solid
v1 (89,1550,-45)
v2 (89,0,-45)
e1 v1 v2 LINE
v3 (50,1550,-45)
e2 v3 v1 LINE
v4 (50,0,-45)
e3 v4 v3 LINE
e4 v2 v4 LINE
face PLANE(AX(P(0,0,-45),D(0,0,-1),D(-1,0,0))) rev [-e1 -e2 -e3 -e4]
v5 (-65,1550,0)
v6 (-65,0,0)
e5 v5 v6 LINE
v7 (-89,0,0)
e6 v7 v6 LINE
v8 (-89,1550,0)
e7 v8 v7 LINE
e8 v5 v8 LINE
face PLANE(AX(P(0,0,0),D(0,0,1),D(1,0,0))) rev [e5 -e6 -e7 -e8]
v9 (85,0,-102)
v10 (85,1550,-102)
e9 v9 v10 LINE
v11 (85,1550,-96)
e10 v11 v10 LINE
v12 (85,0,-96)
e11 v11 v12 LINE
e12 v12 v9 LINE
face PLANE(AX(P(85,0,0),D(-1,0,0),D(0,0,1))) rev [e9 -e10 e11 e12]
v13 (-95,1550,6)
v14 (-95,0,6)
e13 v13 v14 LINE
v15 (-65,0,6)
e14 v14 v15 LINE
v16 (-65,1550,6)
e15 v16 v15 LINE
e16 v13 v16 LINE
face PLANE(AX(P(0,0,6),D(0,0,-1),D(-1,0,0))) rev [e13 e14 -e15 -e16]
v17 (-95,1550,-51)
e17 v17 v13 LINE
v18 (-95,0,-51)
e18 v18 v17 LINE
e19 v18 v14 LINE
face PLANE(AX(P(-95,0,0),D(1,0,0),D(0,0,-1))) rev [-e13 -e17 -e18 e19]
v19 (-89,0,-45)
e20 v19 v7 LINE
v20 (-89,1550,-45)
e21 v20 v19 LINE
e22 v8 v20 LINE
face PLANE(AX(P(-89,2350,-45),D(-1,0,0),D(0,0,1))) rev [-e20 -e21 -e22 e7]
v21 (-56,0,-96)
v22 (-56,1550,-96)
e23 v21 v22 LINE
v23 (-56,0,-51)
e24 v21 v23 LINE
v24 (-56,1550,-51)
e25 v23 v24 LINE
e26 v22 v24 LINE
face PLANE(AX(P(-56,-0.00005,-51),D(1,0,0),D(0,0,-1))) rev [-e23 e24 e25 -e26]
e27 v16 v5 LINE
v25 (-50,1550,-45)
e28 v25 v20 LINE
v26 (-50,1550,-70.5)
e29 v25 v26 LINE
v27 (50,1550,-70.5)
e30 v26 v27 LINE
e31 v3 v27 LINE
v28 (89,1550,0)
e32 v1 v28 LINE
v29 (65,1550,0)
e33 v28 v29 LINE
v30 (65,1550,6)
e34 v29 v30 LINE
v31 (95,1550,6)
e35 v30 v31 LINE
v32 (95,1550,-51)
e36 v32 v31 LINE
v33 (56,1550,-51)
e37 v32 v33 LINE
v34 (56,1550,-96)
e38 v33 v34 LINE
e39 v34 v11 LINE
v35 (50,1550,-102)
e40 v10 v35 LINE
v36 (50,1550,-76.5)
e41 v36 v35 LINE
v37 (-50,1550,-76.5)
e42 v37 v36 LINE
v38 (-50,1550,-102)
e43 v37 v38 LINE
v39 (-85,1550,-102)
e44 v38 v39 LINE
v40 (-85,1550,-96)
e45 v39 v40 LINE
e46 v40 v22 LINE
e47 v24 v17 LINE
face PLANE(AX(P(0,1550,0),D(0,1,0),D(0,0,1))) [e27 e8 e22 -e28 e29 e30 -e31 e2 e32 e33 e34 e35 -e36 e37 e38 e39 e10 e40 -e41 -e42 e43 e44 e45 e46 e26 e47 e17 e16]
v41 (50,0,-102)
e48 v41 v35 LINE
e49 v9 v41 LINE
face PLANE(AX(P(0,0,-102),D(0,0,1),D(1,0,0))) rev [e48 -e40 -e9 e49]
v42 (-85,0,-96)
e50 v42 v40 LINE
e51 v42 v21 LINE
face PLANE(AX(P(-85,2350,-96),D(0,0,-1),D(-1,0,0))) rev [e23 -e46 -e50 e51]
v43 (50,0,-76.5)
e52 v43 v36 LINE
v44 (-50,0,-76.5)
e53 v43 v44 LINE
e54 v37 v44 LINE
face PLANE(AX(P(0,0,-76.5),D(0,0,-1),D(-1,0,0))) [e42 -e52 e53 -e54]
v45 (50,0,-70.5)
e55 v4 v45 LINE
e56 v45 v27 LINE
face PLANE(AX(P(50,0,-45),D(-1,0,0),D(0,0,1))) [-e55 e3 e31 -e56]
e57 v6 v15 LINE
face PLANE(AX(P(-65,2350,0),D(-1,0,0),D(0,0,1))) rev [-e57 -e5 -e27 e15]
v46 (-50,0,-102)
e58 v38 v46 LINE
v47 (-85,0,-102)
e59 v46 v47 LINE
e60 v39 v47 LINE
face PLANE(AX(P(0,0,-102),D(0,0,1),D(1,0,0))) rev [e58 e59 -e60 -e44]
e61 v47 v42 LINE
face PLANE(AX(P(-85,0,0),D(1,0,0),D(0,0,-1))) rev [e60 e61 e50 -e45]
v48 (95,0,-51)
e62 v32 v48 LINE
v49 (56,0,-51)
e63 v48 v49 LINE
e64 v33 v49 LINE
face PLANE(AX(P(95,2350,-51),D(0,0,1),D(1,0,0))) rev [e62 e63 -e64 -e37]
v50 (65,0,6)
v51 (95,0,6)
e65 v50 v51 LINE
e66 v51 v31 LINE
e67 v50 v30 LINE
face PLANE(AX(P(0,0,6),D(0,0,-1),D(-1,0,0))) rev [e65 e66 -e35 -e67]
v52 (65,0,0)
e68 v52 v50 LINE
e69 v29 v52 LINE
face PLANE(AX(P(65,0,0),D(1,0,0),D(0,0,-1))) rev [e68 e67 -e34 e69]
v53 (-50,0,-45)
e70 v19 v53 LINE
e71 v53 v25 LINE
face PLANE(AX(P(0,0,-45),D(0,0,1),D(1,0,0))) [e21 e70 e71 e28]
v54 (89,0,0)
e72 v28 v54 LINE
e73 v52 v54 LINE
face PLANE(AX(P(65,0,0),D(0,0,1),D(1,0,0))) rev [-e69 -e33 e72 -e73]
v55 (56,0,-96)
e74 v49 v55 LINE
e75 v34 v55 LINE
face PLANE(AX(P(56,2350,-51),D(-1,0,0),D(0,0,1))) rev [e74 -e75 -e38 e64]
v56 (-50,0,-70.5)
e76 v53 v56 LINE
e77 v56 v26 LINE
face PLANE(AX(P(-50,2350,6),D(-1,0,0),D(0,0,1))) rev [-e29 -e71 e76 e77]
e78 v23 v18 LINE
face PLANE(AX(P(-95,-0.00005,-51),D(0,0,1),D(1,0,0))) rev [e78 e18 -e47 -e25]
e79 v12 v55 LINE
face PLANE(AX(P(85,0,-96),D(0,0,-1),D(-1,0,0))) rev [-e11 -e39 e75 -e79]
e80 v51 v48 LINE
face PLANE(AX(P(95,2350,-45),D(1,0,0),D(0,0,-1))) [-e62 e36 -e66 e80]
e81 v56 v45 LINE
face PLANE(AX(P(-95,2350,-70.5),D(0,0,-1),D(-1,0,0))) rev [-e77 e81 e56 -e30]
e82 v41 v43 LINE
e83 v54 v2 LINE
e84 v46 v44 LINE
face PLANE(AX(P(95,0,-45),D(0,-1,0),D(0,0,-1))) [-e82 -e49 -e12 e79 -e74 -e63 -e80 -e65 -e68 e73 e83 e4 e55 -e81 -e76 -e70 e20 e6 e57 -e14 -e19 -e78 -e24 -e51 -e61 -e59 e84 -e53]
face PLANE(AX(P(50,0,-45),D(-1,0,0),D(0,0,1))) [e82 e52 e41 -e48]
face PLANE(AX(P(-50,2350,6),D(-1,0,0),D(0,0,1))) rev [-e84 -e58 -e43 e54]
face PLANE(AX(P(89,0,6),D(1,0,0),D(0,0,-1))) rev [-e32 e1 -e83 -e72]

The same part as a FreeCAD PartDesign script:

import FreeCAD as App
import Part
import Sketcher
from FreeCAD import Vector


def add_polygon(sketch, points):
    """Adds a closed chain of lines whose ends are joined by coincident constraints."""
    first, n = sketch.GeometryCount, len(points)
    for a, b in zip(points, points[1:] + points[:1]):
        sketch.addGeometry(Part.LineSegment(App.Vector(*a, 0), App.Vector(*b, 0)), False)
    for i in range(n):
        sketch.addConstraint(Sketcher.Constraint("Coincident", first + i, 2, first + (i + 1) % n, 1))

doc = App.newDocument("Part")
body = doc.addObject("PartDesign::Body", "Body")

sketch1 = doc.addObject("Sketcher::SketchObject", "Sketch")
body.addObject(sketch1)
sketch1.AttachmentSupport = (doc.XY_Plane, [""])
sketch1.MapMode = "FlatFace"
sketch1.AttachmentOffset = App.Placement(Vector(0, 0, -76.5), App.Rotation())
add_polygon(sketch1, [(95, 2350), (95, 0), (50, 0), (50, 2350)])
sketch1.addConstraint(Sketcher.Constraint("Vertical", 0))
sketch1.addConstraint(Sketcher.Constraint("Horizontal", 1))
sketch1.addConstraint(Sketcher.Constraint("Vertical", 2))
sketch1.addConstraint(Sketcher.Constraint("Horizontal", 3))
sketch1.addConstraint(Sketcher.Constraint("PointOnObject", 0, 2, -1))
sketch1.addConstraint(Sketcher.Constraint("DistanceX", 1, 2, 1, 1, 45.0))
sketch1.addConstraint(Sketcher.Constraint("DistanceY", 0, 2, 0, 1, 2350.0))
sketch1.addConstraint(Sketcher.Constraint("DistanceX", -1, 1, 0, 2, 95.0))
pad1 = doc.addObject("PartDesign::Pad", "Pad")
body.addObject(pad1)
pad1.Profile = sketch1
pad1.Length = 31.5

sketch2 = doc.addObject("Sketcher::SketchObject", "Sketch001")
body.addObject(sketch2)
sketch2.AttachmentSupport = (doc.YZ_Plane, [""])
sketch2.MapMode = "FlatFace"
sketch2.AttachmentOffset = App.Placement(Vector(0, 0, 50), App.Rotation())
add_polygon(sketch2, [(2350, -76.5), (0, -76.5), (0, -70.5), (2350, -70.5)])
sketch2.addConstraint(Sketcher.Constraint("Horizontal", 0))
sketch2.addConstraint(Sketcher.Constraint("Vertical", 1))
sketch2.addConstraint(Sketcher.Constraint("Horizontal", 2))
sketch2.addConstraint(Sketcher.Constraint("Vertical", 3))
sketch2.addConstraint(Sketcher.Constraint("PointOnObject", 0, 2, -2))
sketch2.addConstraint(Sketcher.Constraint("DistanceX", 0, 2, 0, 1, 2350.0))
sketch2.addConstraint(Sketcher.Constraint("DistanceY", 1, 1, 1, 2, 6.0))
sketch2.addConstraint(Sketcher.Constraint("DistanceY", 0, 2, -1, 1, 76.5))
pad2 = doc.addObject("PartDesign::Pad", "Pad001")
body.addObject(pad2)
pad2.Profile = sketch2
pad2.Length = 145
pad2.Reversed = True

sketch3 = doc.addObject("Sketcher::SketchObject", "Sketch002")
body.addObject(sketch3)
sketch3.AttachmentSupport = (doc.XY_Plane, [""])
sketch3.MapMode = "FlatFace"
sketch3.AttachmentOffset = App.Placement(Vector(0, 0, -70.5), App.Rotation())
add_polygon(sketch3, [(-95, 2350), (-95, 0), (-50, 0), (-50, 2350)])
sketch3.addConstraint(Sketcher.Constraint("Vertical", 0))
sketch3.addConstraint(Sketcher.Constraint("Horizontal", 1))
sketch3.addConstraint(Sketcher.Constraint("Vertical", 2))
sketch3.addConstraint(Sketcher.Constraint("Horizontal", 3))
sketch3.addConstraint(Sketcher.Constraint("PointOnObject", 0, 2, -1))
sketch3.addConstraint(Sketcher.Constraint("DistanceX", 1, 1, 1, 2, 45.0))
sketch3.addConstraint(Sketcher.Constraint("DistanceY", 0, 2, 0, 1, 2350.0))
sketch3.addConstraint(Sketcher.Constraint("DistanceX", 0, 2, -1, 1, 95.0))
pad3 = doc.addObject("PartDesign::Pad", "Pad002")
body.addObject(pad3)
pad3.Profile = sketch3
pad3.Length = 76.5

sketch4 = doc.addObject("Sketcher::SketchObject", "Sketch003")
body.addObject(sketch4)
sketch4.AttachmentSupport = (doc.XY_Plane, [""])
sketch4.MapMode = "FlatFace"
sketch4.AttachmentOffset = App.Placement(Vector(0, 0, -45), App.Rotation())
add_polygon(sketch4, [(89, 2350), (89, 0), (95, 0), (95, 2350)])
sketch4.addConstraint(Sketcher.Constraint("Vertical", 0))
sketch4.addConstraint(Sketcher.Constraint("Horizontal", 1))
sketch4.addConstraint(Sketcher.Constraint("Vertical", 2))
sketch4.addConstraint(Sketcher.Constraint("Horizontal", 3))
sketch4.addConstraint(Sketcher.Constraint("PointOnObject", 0, 2, -1))
sketch4.addConstraint(Sketcher.Constraint("DistanceX", 1, 1, 1, 2, 6.0))
sketch4.addConstraint(Sketcher.Constraint("DistanceY", 0, 2, 0, 1, 2350.0))
sketch4.addConstraint(Sketcher.Constraint("DistanceX", -1, 1, 0, 2, 89.0))
pad4 = doc.addObject("PartDesign::Pad", "Pad003")
body.addObject(pad4)
pad4.Profile = sketch4
pad4.Length = 51

sketch5 = doc.addObject("Sketcher::SketchObject", "Sketch004")
body.addObject(sketch5)
sketch5.AttachmentSupport = (doc.YZ_Plane, [""])
sketch5.MapMode = "FlatFace"
sketch5.AttachmentOffset = App.Placement(Vector(0, 0, 89), App.Rotation())
add_polygon(sketch5, [(2350, 0), (0, 0), (0, 6), (2350, 6)])
sketch5.addConstraint(Sketcher.Constraint("Horizontal", 0))
sketch5.addConstraint(Sketcher.Constraint("Vertical", 1))
sketch5.addConstraint(Sketcher.Constraint("Horizontal", 2))
sketch5.addConstraint(Sketcher.Constraint("Vertical", 3))
sketch5.addConstraint(Sketcher.Constraint("Coincident", 0, 2, -1, 1))
sketch5.addConstraint(Sketcher.Constraint("DistanceX", 0, 2, 0, 1, 2350.0))
sketch5.addConstraint(Sketcher.Constraint("DistanceY", 1, 1, 1, 2, 6.0))
pad5 = doc.addObject("PartDesign::Pad", "Pad004")
body.addObject(pad5)
pad5.Profile = sketch5
pad5.Length = 24
pad5.Reversed = True

sketch6 = doc.addObject("Sketcher::SketchObject", "Sketch005")
body.addObject(sketch6)
sketch6.AttachmentSupport = (doc.XY_Plane, [""])
sketch6.MapMode = "FlatFace"
sketch6.AttachmentOffset = App.Placement(Vector(0, 0, 6), App.Rotation())
add_polygon(sketch6, [(-65, 2350), (-65, 0), (-50, 0), (-50, 2350)])
sketch6.addConstraint(Sketcher.Constraint("Vertical", 0))
sketch6.addConstraint(Sketcher.Constraint("Horizontal", 1))
sketch6.addConstraint(Sketcher.Constraint("Vertical", 2))
sketch6.addConstraint(Sketcher.Constraint("Horizontal", 3))
sketch6.addConstraint(Sketcher.Constraint("PointOnObject", 0, 2, -1))
sketch6.addConstraint(Sketcher.Constraint("DistanceX", 1, 1, 1, 2, 15.0))
sketch6.addConstraint(Sketcher.Constraint("DistanceY", 0, 2, 0, 1, 2350.0))
sketch6.addConstraint(Sketcher.Constraint("DistanceX", 0, 2, -1, 1, 65.0))
pocket1 = doc.addObject("PartDesign::Pocket", "Pocket")
body.addObject(pocket1)
pocket1.Profile = sketch6
pocket1.Length = 6

sketch7 = doc.addObject("Sketcher::SketchObject", "Sketch006")
body.addObject(sketch7)
sketch7.AttachmentSupport = (doc.XY_Plane, [""])
sketch7.MapMode = "FlatFace"
add_polygon(sketch7, [(-89, 2350), (-89, 0), (-50, 0), (-50, 2350)])
sketch7.addConstraint(Sketcher.Constraint("Vertical", 0))
sketch7.addConstraint(Sketcher.Constraint("Horizontal", 1))
sketch7.addConstraint(Sketcher.Constraint("Vertical", 2))
sketch7.addConstraint(Sketcher.Constraint("Horizontal", 3))
sketch7.addConstraint(Sketcher.Constraint("PointOnObject", 0, 2, -1))
sketch7.addConstraint(Sketcher.Constraint("DistanceX", 1, 1, 1, 2, 39.0))
sketch7.addConstraint(Sketcher.Constraint("DistanceY", 0, 2, 0, 1, 2350.0))
sketch7.addConstraint(Sketcher.Constraint("DistanceX", 0, 2, -1, 1, 89.0))
pocket2 = doc.addObject("PartDesign::Pocket", "Pocket001")
body.addObject(pocket2)
pocket2.Profile = sketch7
pocket2.Length = 45

sketch8 = doc.addObject("Sketcher::SketchObject", "Sketch007")
body.addObject(sketch8)
sketch8.AttachmentSupport = (doc.XZ_Plane, [""])
sketch8.MapMode = "FlatFace"
sketch8.AttachmentOffset = App.Placement(Vector(0, 0, -2350), App.Rotation())
add_polygon(sketch8, [(50, -70.5), (50, -76.5), (-50, -76.5), (-50, -70.5)])
sketch8.addConstraint(Sketcher.Constraint("Vertical", 0))
sketch8.addConstraint(Sketcher.Constraint("Horizontal", 1))
sketch8.addConstraint(Sketcher.Constraint("Vertical", 2))
sketch8.addConstraint(Sketcher.Constraint("Horizontal", 3))
sketch8.addConstraint(Sketcher.Constraint("DistanceX", 1, 2, 1, 1, 100.0))
sketch8.addConstraint(Sketcher.Constraint("DistanceY", 0, 2, 0, 1, 6.0))
sketch8.addConstraint(Sketcher.Constraint("DistanceX", -1, 1, 0, 2, 50.0))
sketch8.addConstraint(Sketcher.Constraint("DistanceY", 0, 2, -1, 1, 76.5))
pocket3 = doc.addObject("PartDesign::Pocket", "Pocket002")
body.addObject(pocket3)
pocket3.Profile = sketch8
pocket3.Length = 100
pocket3.Reversed = True

sketch9 = doc.addObject("Sketcher::SketchObject", "Sketch008")
body.addObject(sketch9)
sketch9.AttachmentSupport = (doc.XY_Plane, [""])
sketch9.MapMode = "FlatFace"
sketch9.AttachmentOffset = App.Placement(Vector(0, 0, -76.5), App.Rotation())
add_polygon(sketch9, [(95, 2350), (95, 0), (50, 0), (50, 2350)])
sketch9.addConstraint(Sketcher.Constraint("Vertical", 0))
sketch9.addConstraint(Sketcher.Constraint("Horizontal", 1))
sketch9.addConstraint(Sketcher.Constraint("Vertical", 2))
sketch9.addConstraint(Sketcher.Constraint("Horizontal", 3))
sketch9.addConstraint(Sketcher.Constraint("PointOnObject", 0, 2, -1))
sketch9.addConstraint(Sketcher.Constraint("DistanceX", 1, 2, 1, 1, 45.0))
sketch9.addConstraint(Sketcher.Constraint("DistanceY", 0, 2, 0, 1, 2350.0))
sketch9.addConstraint(Sketcher.Constraint("DistanceX", -1, 1, 0, 2, 95.0))
pad6 = doc.addObject("PartDesign::Pad", "Pad005")
body.addObject(pad6)
pad6.Profile = sketch9
pad6.Length = 25.5
pad6.Reversed = True

sketch10 = doc.addObject("Sketcher::SketchObject", "Sketch009")
body.addObject(sketch10)
sketch10.AttachmentSupport = (doc.XZ_Plane, [""])
sketch10.MapMode = "FlatFace"
add_polygon(sketch10, [(56, -51), (56, -102), (95, -102), (95, -51)])
sketch10.addConstraint(Sketcher.Constraint("Vertical", 0))
sketch10.addConstraint(Sketcher.Constraint("Horizontal", 1))
sketch10.addConstraint(Sketcher.Constraint("Vertical", 2))
sketch10.addConstraint(Sketcher.Constraint("Horizontal", 3))
sketch10.addConstraint(Sketcher.Constraint("DistanceX", 1, 1, 1, 2, 39.0))
sketch10.addConstraint(Sketcher.Constraint("DistanceY", 0, 2, 0, 1, 51.0))
sketch10.addConstraint(Sketcher.Constraint("DistanceX", -1, 1, 0, 2, 56.0))
sketch10.addConstraint(Sketcher.Constraint("DistanceY", 0, 2, -1, 1, 102.0))
pocket4 = doc.addObject("PartDesign::Pocket", "Pocket003")
body.addObject(pocket4)
pocket4.Profile = sketch10
pocket4.Type = "ThroughAll"

sketch11 = doc.addObject("Sketcher::SketchObject", "Sketch010")
body.addObject(sketch11)
sketch11.AttachmentSupport = (doc.YZ_Plane, [""])
sketch11.MapMode = "FlatFace"
sketch11.AttachmentOffset = App.Placement(Vector(0, 0, 56), App.Rotation())
add_polygon(sketch11, [(2350, -96), (0, -96), (0, -102), (2350, -102)])
sketch11.addConstraint(Sketcher.Constraint("Horizontal", 0))
sketch11.addConstraint(Sketcher.Constraint("Vertical", 1))
sketch11.addConstraint(Sketcher.Constraint("Horizontal", 2))
sketch11.addConstraint(Sketcher.Constraint("Vertical", 3))
sketch11.addConstraint(Sketcher.Constraint("PointOnObject", 0, 2, -2))
sketch11.addConstraint(Sketcher.Constraint("DistanceX", 0, 2, 0, 1, 2350.0))
sketch11.addConstraint(Sketcher.Constraint("DistanceY", 1, 2, 1, 1, 6.0))
sketch11.addConstraint(Sketcher.Constraint("DistanceY", 0, 2, -1, 1, 96.0))
pad7 = doc.addObject("PartDesign::Pad", "Pad006")
body.addObject(pad7)
pad7.Profile = sketch11
pad7.Length = 29

sketch12 = doc.addObject("Sketcher::SketchObject", "Sketch011")
body.addObject(sketch12)
sketch12.AttachmentSupport = (doc.XY_Plane, [""])
sketch12.MapMode = "FlatFace"
sketch12.AttachmentOffset = App.Placement(Vector(0, 0, -76.5), App.Rotation())
add_polygon(sketch12, [(-50, 2350), (-50, 0), (-95, 0), (-95, 2350)])
sketch12.addConstraint(Sketcher.Constraint("Vertical", 0))
sketch12.addConstraint(Sketcher.Constraint("Horizontal", 1))
sketch12.addConstraint(Sketcher.Constraint("Vertical", 2))
sketch12.addConstraint(Sketcher.Constraint("Horizontal", 3))
sketch12.addConstraint(Sketcher.Constraint("PointOnObject", 0, 2, -1))
sketch12.addConstraint(Sketcher.Constraint("DistanceX", 1, 2, 1, 1, 45.0))
sketch12.addConstraint(Sketcher.Constraint("DistanceY", 0, 2, 0, 1, 2350.0))
sketch12.addConstraint(Sketcher.Constraint("DistanceX", 0, 2, -1, 1, 50.0))
pad8 = doc.addObject("PartDesign::Pad", "Pad007")
body.addObject(pad8)
pad8.Profile = sketch12
pad8.Length = 25.5
pad8.Reversed = True

sketch13 = doc.addObject("Sketcher::SketchObject", "Sketch012")
body.addObject(sketch13)
sketch13.AttachmentSupport = (doc.XZ_Plane, [""])
sketch13.MapMode = "FlatFace"
sketch13.AttachmentOffset = App.Placement(Vector(0, 0, -2350), App.Rotation())
add_polygon(sketch13, [(-56, -51), (-56, -102), (-95, -102), (-95, -51)])
sketch13.addConstraint(Sketcher.Constraint("Vertical", 0))
sketch13.addConstraint(Sketcher.Constraint("Horizontal", 1))
sketch13.addConstraint(Sketcher.Constraint("Vertical", 2))
sketch13.addConstraint(Sketcher.Constraint("Horizontal", 3))
sketch13.addConstraint(Sketcher.Constraint("DistanceX", 1, 2, 1, 1, 39.0))
sketch13.addConstraint(Sketcher.Constraint("DistanceY", 0, 2, 0, 1, 51.0))
sketch13.addConstraint(Sketcher.Constraint("DistanceX", 0, 2, -1, 1, 56.0))
sketch13.addConstraint(Sketcher.Constraint("DistanceY", 0, 2, -1, 1, 102.0))
pocket5 = doc.addObject("PartDesign::Pocket", "Pocket004")
body.addObject(pocket5)
pocket5.Profile = sketch13
pocket5.Type = "ThroughAll"
pocket5.Reversed = True

sketch14 = doc.addObject("Sketcher::SketchObject", "Sketch013")
body.addObject(sketch14)
sketch14.AttachmentSupport = (doc.YZ_Plane, [""])
sketch14.MapMode = "FlatFace"
sketch14.AttachmentOffset = App.Placement(Vector(0, 0, -56), App.Rotation())
add_polygon(sketch14, [(2350, -102), (0, -102), (0, -96), (2350, -96)])
sketch14.addConstraint(Sketcher.Constraint("Horizontal", 0))
sketch14.addConstraint(Sketcher.Constraint("Vertical", 1))
sketch14.addConstraint(Sketcher.Constraint("Horizontal", 2))
sketch14.addConstraint(Sketcher.Constraint("Vertical", 3))
sketch14.addConstraint(Sketcher.Constraint("PointOnObject", 0, 2, -2))
sketch14.addConstraint(Sketcher.Constraint("DistanceX", 0, 2, 0, 1, 2350.0))
sketch14.addConstraint(Sketcher.Constraint("DistanceY", 1, 1, 1, 2, 6.0))
sketch14.addConstraint(Sketcher.Constraint("DistanceY", 0, 2, -1, 1, 102.0))
pad9 = doc.addObject("PartDesign::Pad", "Pad008")
body.addObject(pad9)
pad9.Profile = sketch14
pad9.Length = 29
pad9.Reversed = True

sketch15 = doc.addObject("Sketcher::SketchObject", "Sketch014")
body.addObject(sketch15)
sketch15.AttachmentSupport = (doc.YZ_Plane, [""])
sketch15.MapMode = "FlatFace"
sketch15.AttachmentOffset = App.Placement(Vector(0, 0, -56), App.Rotation())
sketch15.addGeometry(Part.Circle(Vector(2330, -73.5, 0), Vector(0, 0, 1), 5), False)
sketch15.addConstraint(Sketcher.Constraint("Diameter", 0, 10.0))
sketch15.addConstraint(Sketcher.Constraint("DistanceX", -1, 1, 0, 3, 2330.0))
sketch15.addConstraint(Sketcher.Constraint("DistanceY", 0, 3, -1, 1, 73.5))
doc.recompute()
hole = doc.addObject("PartDesign::Hole", "Hole")
body.addObject(hole)
hole.Profile = sketch15
hole.ThreadType = "None"
hole.Diameter = 10
hole.DepthType = "Dimension"
hole.Depth = 6
hole.DrillPoint = "Flat"
hole.Reversed = True

sketch16 = doc.addObject("Sketcher::SketchObject", "Sketch015")
body.addObject(sketch16)
sketch16.AttachmentSupport = (doc.YZ_Plane, [""])
sketch16.MapMode = "FlatFace"
sketch16.AttachmentOffset = App.Placement(Vector(0, 0, 50), App.Rotation())
sketch16.addGeometry(Part.Circle(Vector(2330, -73.5, 0), Vector(0, 0, 1), 5), False)
sketch16.addConstraint(Sketcher.Constraint("Diameter", 0, 10.0))
sketch16.addConstraint(Sketcher.Constraint("DistanceX", -1, 1, 0, 3, 2330.0))
sketch16.addConstraint(Sketcher.Constraint("DistanceY", 0, 3, -1, 1, 73.5))
doc.recompute()
hole2 = doc.addObject("PartDesign::Hole", "Hole001")
body.addObject(hole2)
hole2.Profile = sketch16
hole2.ThreadType = "None"
hole2.Diameter = 10
hole2.DepthType = "Dimension"
hole2.Depth = 45
hole2.DrillPoint = "Flat"
hole2.Reversed = True

sketch17 = doc.addObject("Sketcher::SketchObject", "Sketch016")
body.addObject(sketch17)
sketch17.AttachmentSupport = (doc.XZ_Plane, [""])
sketch17.MapMode = "FlatFace"
sketch17.AttachmentOffset = App.Placement(Vector(0, 0, -2350), App.Rotation())
add_polygon(sketch17, [(-140.674095, -122.205688), (-140.674095, 41.036534), (147.188372, 41.036534), (147.188372, -122.205688)])
sketch17.addConstraint(Sketcher.Constraint("Vertical", 0))
sketch17.addConstraint(Sketcher.Constraint("Horizontal", 1))
sketch17.addConstraint(Sketcher.Constraint("Vertical", 2))
sketch17.addConstraint(Sketcher.Constraint("Horizontal", 3))
sketch17.addConstraint(Sketcher.Constraint("DistanceY", 0, 1, 0, 2, 163.242222))
sketch17.addConstraint(Sketcher.Constraint("DistanceX", 1, 1, 1, 2, 287.862467))
sketch17.addConstraint(Sketcher.Constraint("DistanceX", 0, 2, -1, 1, 140.674095))
sketch17.addConstraint(Sketcher.Constraint("DistanceY", -1, 1, 0, 2, 41.036534))
pocket6 = doc.addObject("PartDesign::Pocket", "Pocket005")
body.addObject(pocket6)
pocket6.Profile = sketch17
pocket6.Length = 800
pocket6.Reversed = True

doc.recompute()
